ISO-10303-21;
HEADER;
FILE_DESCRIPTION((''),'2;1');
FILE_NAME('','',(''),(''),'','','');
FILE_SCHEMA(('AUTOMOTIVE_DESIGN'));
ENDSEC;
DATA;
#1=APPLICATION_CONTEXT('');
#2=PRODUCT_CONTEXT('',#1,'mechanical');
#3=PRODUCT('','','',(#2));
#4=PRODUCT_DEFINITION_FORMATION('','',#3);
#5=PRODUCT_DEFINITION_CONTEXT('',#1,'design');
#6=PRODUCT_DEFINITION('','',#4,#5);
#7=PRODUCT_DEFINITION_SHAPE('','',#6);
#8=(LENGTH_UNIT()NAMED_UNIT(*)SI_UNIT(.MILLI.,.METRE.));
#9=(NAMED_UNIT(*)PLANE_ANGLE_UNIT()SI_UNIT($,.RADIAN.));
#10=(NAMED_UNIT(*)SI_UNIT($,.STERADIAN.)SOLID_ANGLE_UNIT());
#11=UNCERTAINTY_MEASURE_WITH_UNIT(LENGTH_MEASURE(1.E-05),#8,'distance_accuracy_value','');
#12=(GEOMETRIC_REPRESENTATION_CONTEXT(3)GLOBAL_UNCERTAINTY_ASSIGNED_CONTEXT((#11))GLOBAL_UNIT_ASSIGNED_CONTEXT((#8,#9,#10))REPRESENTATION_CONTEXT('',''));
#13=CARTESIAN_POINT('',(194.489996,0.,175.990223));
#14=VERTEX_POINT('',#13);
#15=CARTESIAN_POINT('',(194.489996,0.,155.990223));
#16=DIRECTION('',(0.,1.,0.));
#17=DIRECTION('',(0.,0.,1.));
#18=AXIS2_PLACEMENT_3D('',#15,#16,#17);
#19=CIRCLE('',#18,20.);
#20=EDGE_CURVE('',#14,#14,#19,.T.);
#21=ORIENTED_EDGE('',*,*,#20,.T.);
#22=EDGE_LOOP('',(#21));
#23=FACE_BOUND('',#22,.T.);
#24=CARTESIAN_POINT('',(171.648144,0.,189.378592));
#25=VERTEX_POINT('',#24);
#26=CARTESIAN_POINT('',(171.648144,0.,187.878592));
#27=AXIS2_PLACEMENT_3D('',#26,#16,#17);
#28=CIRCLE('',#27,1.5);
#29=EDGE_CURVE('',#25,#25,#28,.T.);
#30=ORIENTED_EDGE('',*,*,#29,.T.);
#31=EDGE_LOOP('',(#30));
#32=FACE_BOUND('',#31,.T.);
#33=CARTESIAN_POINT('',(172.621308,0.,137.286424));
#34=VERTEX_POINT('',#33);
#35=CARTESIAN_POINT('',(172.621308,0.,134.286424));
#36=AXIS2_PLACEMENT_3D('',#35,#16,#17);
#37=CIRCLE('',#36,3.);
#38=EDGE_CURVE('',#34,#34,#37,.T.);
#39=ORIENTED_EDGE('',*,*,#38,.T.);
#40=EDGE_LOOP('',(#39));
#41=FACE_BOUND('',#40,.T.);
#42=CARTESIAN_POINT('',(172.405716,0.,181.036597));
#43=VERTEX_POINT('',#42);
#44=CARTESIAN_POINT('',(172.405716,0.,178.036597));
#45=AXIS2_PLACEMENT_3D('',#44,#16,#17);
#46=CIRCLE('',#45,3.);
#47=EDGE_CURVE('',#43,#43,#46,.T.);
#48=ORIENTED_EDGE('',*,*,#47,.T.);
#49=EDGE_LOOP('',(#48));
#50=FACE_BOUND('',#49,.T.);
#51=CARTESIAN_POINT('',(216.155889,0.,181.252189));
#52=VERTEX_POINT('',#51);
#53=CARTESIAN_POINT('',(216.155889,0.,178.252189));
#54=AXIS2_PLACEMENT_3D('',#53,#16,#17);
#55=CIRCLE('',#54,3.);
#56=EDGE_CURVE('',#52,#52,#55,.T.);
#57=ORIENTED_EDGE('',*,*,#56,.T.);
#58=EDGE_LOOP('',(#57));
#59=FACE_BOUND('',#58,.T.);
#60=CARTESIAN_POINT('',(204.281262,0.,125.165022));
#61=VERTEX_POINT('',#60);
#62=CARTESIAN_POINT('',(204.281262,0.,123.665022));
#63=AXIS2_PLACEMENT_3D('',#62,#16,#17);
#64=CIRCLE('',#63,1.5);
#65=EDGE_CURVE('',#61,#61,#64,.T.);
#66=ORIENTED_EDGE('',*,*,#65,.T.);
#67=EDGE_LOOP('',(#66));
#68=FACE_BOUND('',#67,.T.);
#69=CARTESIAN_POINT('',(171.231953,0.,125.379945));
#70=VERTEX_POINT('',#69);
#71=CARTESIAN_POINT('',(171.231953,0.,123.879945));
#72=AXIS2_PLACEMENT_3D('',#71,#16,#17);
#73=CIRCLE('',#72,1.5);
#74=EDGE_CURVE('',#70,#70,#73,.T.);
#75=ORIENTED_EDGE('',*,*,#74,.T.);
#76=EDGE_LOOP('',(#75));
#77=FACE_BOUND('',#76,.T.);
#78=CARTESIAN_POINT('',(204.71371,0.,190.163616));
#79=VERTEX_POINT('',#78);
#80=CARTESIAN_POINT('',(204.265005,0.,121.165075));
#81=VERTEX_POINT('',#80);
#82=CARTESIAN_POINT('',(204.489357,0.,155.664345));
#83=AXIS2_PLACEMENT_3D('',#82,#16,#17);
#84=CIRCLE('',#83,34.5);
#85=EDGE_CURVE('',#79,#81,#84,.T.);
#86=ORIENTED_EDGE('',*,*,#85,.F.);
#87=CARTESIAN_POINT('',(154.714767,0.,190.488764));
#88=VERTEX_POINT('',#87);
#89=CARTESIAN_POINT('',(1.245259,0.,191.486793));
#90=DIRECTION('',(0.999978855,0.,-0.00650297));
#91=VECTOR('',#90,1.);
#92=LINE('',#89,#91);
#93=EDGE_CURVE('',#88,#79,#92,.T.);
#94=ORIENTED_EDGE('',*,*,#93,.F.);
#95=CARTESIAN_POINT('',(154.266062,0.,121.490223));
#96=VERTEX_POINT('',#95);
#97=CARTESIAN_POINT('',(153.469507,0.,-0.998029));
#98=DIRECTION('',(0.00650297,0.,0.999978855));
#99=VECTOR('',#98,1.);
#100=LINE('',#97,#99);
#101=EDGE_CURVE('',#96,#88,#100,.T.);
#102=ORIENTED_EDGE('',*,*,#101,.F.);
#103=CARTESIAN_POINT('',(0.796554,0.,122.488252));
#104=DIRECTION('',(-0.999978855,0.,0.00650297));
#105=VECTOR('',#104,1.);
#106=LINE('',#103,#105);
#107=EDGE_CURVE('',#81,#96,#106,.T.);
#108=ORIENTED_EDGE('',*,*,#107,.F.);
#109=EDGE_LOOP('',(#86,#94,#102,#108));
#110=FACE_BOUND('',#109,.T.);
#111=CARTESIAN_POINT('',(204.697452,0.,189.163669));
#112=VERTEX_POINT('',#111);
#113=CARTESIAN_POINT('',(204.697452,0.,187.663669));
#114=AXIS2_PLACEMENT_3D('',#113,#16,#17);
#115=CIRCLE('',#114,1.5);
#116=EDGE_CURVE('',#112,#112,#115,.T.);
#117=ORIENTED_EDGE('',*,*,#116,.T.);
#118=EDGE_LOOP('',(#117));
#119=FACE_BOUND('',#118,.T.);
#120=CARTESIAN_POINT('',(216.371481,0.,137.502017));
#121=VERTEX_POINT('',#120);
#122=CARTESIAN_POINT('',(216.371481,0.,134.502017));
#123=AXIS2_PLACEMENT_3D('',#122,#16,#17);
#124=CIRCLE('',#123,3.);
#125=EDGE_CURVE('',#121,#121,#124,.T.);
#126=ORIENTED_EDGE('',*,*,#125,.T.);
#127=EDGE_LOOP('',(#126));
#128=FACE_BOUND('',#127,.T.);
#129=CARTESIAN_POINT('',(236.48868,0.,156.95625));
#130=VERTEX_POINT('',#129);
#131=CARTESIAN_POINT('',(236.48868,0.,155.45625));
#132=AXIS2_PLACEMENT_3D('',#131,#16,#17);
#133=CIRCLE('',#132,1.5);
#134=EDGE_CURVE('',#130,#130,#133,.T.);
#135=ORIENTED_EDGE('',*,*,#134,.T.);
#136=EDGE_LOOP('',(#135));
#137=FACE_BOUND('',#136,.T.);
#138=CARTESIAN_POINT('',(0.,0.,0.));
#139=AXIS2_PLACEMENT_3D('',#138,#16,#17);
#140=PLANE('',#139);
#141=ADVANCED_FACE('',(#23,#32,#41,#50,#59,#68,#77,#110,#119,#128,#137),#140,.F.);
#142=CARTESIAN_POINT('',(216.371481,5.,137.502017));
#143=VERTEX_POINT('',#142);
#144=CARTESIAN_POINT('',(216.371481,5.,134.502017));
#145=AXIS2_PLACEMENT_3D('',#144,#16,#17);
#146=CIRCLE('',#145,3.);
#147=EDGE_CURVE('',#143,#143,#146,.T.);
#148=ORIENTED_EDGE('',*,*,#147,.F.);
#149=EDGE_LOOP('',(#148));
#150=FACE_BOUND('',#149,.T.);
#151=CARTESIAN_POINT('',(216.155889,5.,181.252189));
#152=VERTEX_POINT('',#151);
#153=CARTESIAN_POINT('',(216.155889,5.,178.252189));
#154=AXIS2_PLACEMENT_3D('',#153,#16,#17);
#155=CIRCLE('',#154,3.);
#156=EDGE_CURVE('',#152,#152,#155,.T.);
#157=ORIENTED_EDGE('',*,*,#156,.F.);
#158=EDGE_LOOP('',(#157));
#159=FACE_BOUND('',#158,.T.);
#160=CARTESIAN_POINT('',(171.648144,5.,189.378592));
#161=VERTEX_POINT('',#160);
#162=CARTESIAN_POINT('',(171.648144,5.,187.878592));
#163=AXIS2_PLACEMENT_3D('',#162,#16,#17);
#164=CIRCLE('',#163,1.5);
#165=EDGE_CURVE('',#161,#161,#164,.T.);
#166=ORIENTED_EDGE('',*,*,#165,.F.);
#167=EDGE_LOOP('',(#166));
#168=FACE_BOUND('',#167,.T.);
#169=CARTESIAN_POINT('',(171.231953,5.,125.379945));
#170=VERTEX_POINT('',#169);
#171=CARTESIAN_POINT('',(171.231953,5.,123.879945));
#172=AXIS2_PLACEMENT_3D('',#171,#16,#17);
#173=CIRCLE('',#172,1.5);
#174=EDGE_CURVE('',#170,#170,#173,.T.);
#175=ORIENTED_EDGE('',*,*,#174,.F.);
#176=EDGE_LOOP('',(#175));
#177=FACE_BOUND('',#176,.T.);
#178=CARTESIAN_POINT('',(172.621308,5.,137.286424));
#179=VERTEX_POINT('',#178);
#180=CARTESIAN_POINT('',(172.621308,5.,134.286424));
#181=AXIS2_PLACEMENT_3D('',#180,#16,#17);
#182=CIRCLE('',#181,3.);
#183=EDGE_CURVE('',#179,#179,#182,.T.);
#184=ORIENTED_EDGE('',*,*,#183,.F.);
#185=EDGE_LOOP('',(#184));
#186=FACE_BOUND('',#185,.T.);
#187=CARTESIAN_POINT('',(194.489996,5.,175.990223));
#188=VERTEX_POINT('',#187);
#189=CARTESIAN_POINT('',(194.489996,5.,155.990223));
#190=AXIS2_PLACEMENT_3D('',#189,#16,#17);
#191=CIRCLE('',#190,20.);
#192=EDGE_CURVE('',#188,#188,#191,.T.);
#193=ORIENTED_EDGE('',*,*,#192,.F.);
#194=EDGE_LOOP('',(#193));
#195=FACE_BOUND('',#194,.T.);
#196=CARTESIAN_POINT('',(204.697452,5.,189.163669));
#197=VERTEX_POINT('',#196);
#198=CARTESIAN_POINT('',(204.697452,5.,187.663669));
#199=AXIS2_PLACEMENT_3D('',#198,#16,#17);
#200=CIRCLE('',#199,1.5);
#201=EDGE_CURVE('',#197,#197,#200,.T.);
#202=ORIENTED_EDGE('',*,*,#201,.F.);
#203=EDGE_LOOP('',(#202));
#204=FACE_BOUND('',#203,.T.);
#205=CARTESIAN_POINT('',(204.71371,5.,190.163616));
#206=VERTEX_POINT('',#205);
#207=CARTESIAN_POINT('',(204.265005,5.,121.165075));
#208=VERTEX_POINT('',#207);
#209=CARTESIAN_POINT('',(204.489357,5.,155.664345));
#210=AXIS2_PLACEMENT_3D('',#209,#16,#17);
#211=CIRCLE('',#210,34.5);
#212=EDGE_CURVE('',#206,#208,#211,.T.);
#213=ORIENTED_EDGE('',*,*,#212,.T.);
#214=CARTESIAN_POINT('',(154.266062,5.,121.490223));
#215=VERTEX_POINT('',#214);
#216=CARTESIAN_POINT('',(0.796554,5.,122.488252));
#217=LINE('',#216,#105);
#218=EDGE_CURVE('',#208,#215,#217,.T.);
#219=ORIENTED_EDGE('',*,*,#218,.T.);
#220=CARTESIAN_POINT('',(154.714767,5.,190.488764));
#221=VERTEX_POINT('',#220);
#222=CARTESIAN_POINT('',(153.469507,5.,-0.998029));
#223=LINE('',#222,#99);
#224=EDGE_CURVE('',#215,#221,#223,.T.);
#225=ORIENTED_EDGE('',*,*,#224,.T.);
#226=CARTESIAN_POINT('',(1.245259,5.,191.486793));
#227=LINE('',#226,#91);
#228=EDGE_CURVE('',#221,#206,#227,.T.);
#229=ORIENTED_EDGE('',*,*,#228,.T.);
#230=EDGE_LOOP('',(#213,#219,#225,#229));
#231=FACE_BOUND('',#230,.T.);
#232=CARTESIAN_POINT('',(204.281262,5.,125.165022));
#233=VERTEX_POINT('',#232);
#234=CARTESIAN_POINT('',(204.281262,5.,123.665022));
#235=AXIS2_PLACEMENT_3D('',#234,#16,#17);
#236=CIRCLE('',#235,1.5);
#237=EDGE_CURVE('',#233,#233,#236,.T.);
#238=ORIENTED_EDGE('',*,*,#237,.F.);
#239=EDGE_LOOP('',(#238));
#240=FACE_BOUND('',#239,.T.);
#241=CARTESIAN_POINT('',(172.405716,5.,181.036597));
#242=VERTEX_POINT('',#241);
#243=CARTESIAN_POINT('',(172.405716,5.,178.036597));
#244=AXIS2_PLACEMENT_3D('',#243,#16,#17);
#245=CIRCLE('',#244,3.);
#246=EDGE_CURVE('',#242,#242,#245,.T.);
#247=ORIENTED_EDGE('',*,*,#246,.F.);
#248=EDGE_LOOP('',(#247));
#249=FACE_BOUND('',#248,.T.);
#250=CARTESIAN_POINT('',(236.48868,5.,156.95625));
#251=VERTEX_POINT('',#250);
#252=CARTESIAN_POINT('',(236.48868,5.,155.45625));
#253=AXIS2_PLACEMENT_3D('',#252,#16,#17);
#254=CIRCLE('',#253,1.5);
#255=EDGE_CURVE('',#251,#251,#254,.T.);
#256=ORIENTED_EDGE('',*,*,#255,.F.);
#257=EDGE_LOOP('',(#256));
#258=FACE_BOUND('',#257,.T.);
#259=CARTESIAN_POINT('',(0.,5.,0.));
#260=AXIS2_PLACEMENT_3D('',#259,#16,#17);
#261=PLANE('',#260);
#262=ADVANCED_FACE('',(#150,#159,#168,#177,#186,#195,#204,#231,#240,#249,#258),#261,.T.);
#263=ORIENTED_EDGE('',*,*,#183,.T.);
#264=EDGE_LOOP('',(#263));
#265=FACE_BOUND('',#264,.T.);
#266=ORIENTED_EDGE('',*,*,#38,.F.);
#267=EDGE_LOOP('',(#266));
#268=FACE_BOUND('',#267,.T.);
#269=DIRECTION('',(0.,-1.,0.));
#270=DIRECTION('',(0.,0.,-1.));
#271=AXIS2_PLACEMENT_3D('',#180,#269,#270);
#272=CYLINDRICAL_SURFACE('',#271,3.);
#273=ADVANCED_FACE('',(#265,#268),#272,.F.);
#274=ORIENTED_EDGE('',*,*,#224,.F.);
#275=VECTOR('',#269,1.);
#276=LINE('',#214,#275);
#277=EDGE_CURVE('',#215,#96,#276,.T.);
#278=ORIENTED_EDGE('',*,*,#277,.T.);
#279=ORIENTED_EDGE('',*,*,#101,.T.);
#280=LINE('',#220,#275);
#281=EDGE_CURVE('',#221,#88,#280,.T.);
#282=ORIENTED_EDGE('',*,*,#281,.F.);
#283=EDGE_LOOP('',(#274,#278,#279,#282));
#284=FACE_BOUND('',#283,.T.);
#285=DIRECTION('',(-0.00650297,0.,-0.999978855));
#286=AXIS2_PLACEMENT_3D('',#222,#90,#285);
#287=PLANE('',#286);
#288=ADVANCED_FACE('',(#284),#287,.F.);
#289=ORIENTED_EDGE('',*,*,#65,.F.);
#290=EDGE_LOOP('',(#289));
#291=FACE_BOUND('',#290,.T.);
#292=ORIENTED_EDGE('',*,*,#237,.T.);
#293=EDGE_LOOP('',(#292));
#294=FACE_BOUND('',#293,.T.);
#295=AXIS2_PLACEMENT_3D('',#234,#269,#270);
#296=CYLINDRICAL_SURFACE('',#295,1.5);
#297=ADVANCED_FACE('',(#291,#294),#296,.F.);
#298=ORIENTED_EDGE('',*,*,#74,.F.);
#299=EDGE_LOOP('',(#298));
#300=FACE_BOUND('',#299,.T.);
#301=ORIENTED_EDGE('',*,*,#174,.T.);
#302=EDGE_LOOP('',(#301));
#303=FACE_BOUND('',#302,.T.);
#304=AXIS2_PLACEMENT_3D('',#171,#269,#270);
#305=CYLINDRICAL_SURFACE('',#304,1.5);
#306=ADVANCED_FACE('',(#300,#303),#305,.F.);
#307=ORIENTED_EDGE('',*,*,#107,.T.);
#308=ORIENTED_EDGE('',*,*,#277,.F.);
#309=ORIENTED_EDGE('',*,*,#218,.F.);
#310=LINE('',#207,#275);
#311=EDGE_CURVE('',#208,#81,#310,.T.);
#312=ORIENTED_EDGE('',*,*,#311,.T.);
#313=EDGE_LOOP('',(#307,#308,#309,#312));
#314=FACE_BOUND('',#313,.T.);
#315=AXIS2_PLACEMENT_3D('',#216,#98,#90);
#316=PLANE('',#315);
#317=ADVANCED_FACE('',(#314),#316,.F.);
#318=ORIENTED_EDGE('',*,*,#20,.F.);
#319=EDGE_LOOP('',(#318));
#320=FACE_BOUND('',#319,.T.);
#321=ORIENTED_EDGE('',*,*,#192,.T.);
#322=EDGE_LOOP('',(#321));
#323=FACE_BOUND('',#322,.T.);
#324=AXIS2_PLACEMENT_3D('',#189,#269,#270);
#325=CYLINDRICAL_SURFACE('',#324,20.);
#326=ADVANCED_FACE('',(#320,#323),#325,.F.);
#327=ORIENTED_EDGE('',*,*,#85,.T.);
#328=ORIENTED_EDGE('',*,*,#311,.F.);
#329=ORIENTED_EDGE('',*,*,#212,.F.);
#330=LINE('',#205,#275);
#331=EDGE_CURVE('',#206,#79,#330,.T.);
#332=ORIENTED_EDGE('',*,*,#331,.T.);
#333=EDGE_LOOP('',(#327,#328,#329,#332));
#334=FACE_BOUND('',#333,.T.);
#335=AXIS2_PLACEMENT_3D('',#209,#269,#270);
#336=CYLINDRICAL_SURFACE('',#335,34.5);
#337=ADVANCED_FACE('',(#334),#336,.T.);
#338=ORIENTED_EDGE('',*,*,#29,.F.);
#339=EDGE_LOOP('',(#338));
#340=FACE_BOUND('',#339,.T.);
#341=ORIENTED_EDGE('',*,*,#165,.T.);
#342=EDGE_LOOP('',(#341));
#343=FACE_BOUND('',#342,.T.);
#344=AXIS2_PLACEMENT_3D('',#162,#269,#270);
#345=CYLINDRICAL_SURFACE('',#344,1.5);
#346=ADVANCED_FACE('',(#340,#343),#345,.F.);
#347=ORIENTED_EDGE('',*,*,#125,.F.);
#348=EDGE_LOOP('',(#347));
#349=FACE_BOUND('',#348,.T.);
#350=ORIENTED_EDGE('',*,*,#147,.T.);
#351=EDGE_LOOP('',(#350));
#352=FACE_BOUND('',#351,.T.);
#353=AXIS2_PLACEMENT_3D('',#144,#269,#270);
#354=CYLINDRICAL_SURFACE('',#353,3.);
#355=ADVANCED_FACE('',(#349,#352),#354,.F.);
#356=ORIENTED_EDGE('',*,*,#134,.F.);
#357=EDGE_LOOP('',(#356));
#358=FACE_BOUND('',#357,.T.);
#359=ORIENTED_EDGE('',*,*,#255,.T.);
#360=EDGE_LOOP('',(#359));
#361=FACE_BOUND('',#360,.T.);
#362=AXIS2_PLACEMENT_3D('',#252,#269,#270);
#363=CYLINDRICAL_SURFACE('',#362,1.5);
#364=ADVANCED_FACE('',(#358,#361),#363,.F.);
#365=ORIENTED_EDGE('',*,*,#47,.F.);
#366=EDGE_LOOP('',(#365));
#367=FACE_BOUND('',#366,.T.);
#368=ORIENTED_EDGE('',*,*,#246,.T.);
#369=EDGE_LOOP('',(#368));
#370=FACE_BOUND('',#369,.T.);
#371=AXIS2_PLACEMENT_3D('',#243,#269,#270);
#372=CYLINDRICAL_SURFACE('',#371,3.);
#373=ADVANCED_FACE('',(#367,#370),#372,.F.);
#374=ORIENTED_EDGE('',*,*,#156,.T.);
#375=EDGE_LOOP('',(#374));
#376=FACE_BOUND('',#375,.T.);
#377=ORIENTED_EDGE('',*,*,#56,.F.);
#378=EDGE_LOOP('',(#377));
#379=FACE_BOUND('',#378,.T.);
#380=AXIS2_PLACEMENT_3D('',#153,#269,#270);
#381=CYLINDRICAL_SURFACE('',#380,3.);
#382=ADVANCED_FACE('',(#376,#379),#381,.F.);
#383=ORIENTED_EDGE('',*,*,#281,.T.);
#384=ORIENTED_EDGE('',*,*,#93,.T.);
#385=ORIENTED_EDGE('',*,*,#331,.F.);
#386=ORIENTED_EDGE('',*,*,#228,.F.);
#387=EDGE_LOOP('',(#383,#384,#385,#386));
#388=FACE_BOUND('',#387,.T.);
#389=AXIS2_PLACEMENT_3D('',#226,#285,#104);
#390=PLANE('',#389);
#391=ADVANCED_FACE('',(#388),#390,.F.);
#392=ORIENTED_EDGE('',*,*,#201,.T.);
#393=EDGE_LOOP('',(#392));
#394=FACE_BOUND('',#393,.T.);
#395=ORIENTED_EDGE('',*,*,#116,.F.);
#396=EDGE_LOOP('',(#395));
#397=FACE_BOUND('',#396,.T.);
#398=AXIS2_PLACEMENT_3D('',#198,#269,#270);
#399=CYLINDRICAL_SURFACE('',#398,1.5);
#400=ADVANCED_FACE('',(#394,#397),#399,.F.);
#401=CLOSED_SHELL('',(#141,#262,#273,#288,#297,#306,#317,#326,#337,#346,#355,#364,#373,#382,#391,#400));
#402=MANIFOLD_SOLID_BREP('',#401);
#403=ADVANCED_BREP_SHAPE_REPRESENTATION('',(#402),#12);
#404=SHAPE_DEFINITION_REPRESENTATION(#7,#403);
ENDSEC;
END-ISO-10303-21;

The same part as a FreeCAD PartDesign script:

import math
import FreeCAD as App
import Part
import Sketcher

V = App.Vector
Q = App.Units.Quantity

doc = App.newDocument("Part")
params = doc.addObject("Spreadsheet::Sheet", "Params")
for row, (alias, value) in enumerate([
    ("sketch1_diameter", "3 mm"),
    ("sketch1_diameter2", "6 mm"),
    ("sketch1_diameter3", "40 mm"),
    ("sketch1_radius", "34.5 mm"),
    ("sketch1_length", "50 mm"),
    ("pad1_length", "5 mm"),
], start=1):
    params.set(f"A{row}", alias)
    params.set(f"B{row}", "=" + value)
    params.setAlias(f"B{row}", alias)

body = doc.addObject("PartDesign::Body", "Body")

# Sketch on XZ plane
sketch1 = body.newObject("Sketcher::SketchObject", "Sketch")
sketch1.AttachmentSupport = (doc.getObject("XZ_Plane"), [""])
sketch1.MapMode = "FlatFace"
sketch1.addGeometry([
    Part.LineSegment(V(204.3, 121.2, 0), V(154.3, 121.5, 0)),  # 0
    Part.LineSegment(V(154.3, 121.5, 0), V(154.7, 190.5, 0)),  # 1
    Part.LineSegment(V(154.7, 190.5, 0), V(204.7, 190.2, 0)),  # 2
    Part.ArcOfCircle(Part.Circle(V(204.5, 155.7, 0), V(0, 0, 1), 34.5), math.radians(-90), math.radians(90)),  # 3
    Part.Circle(V(171.6, 187.9, 0), V(0, 0, 1), 1.5),  # 4
    Part.Circle(V(172.4, 178, 0), V(0, 0, 1), 3),  # 5
    Part.Circle(V(194.5, 156, 0), V(0, 0, 1), 20),  # 6
    Part.Circle(V(204.7, 187.7, 0), V(0, 0, 1), 1.5),  # 7
    Part.Circle(V(216.2, 178.3, 0), V(0, 0, 1), 3),  # 8
    Part.Circle(V(172.6, 134.3, 0), V(0, 0, 1), 3),  # 9
    Part.Circle(V(171.2, 123.9, 0), V(0, 0, 1), 1.5),  # 10
    Part.Circle(V(236.5, 155.5, 0), V(0, 0, 1), 1.5),  # 11
    Part.Circle(V(216.4, 134.5, 0), V(0, 0, 1), 3),  # 12
    Part.Circle(V(204.3, 123.7, 0), V(0, 0, 1), 1.5),  # 13
], False)
sketch1.addConstraint([
    Sketcher.Constraint("Coincident", 0, 2, 1, 1),
    Sketcher.Constraint("Coincident", 1, 2, 2, 1),
    Sketcher.Constraint("Tangent", 2, 2, 3, 2),
    Sketcher.Constraint("Tangent", 3, 1, 0, 1),
    Sketcher.Constraint("Equal", 4, 7),
    Sketcher.Constraint("Equal", 5, 8),
    Sketcher.Constraint("Equal", 8, 9),
    Sketcher.Constraint("Equal", 7, 10),
    Sketcher.Constraint("Equal", 10, 11),
    Sketcher.Constraint("Equal", 9, 12),
    Sketcher.Constraint("Equal", 11, 13),
    Sketcher.Constraint("Perpendicular", 0, 1),
    Sketcher.Constraint("Perpendicular", 1, 2),
    Sketcher.Constraint("Diameter", 4, Q("3 mm")),
    Sketcher.Constraint("Diameter", 5, Q("6 mm")),
    Sketcher.Constraint("Diameter", 6, Q("40 mm")),
    Sketcher.Constraint("Radius", 3, Q("34.5 mm")),
    Sketcher.Constraint("Distance", 0, Q("50 mm")),
    Sketcher.Constraint("DistanceY", 0, 2, 6, 3, Q("34.5 mm")),
    Sketcher.Constraint("DistanceY", 9, 3, 6, 3, Q("21.703799 mm")),
    Sketcher.Constraint("DistanceY", 10, 3, 3, 3, Q("31.7844 mm")),
    Sketcher.Constraint("DistanceX", 12, 3, 11, 3, Q("20.117199 mm")),
    Sketcher.Constraint("DistanceY", 13, 3, 6, 3, Q("32.325201 mm")),
    Sketcher.Constraint("DistanceX", 0, 2, 13, 3, Q("50.0152 mm")),
    Sketcher.Constraint("DistanceY", -1, 1, 4, 3, Q("187.878592 mm")),
    Sketcher.Constraint("DistanceY", -1, 1, 7, 3, Q("187.663669 mm")),
    Sketcher.Constraint("DistanceX", -1, 1, 8, 3, Q("216.155889 mm")),
    Sketcher.Constraint("DistanceY", -1, 1, 8, 3, Q("178.252189 mm")),
    Sketcher.Constraint("DistanceX", -1, 1, 9, 3, Q("172.621308 mm")),
    Sketcher.Constraint("DistanceX", -1, 1, 11, 3, Q("236.48868 mm")),
    Sketcher.Constraint("DistanceY", -1, 1, 11, 3, Q("155.45625 mm")),
    Sketcher.Constraint("DistanceX", -1, 1, 13, 3, Q("204.281262 mm")),
    Sketcher.Constraint("DistanceY", -1, 1, 13, 3, Q("123.665022 mm")),
    Sketcher.Constraint("DistanceX", -1, 1, 2, 2, Q("204.71371 mm")),
    Sketcher.Constraint("DistanceX", 5, 3, 3, 3, Q("32.083641 mm")),
    Sketcher.Constraint("DistanceY", 3, 3, 5, 3, Q("22.372252 mm")),
    Sketcher.Constraint("DistanceX", 6, 3, 3, 3, Q("9.999361 mm")),
    Sketcher.Constraint("DistanceX", 4, 3, 7, 3, Q("33.049309 mm")),
    Sketcher.Constraint("DistanceX", 10, 3, 4, 3, Q("0.41619 mm")),
    Sketcher.Constraint("DistanceX", 7, 3, 11, 3, Q("31.791228 mm")),
    Sketcher.Constraint("DistanceY", 12, 3, 3, 3, Q("21.162329 mm")),
])
sketch1.setExpression("Constraints[13]", "Params.sketch1_diameter")
sketch1.setExpression("Constraints[14]", "Params.sketch1_diameter2")
sketch1.setExpression("Constraints[15]", "Params.sketch1_diameter3")
sketch1.setExpression("Constraints[16]", "Params.sketch1_radius")
sketch1.setExpression("Constraints[17]", "Params.sketch1_length")
pad1 = body.newObject("PartDesign::Pad", "Pad")
pad1.Profile = sketch1
pad1.setExpression("Length", "Params.pad1_length")
pad1.Reversed = True

doc.recompute()
